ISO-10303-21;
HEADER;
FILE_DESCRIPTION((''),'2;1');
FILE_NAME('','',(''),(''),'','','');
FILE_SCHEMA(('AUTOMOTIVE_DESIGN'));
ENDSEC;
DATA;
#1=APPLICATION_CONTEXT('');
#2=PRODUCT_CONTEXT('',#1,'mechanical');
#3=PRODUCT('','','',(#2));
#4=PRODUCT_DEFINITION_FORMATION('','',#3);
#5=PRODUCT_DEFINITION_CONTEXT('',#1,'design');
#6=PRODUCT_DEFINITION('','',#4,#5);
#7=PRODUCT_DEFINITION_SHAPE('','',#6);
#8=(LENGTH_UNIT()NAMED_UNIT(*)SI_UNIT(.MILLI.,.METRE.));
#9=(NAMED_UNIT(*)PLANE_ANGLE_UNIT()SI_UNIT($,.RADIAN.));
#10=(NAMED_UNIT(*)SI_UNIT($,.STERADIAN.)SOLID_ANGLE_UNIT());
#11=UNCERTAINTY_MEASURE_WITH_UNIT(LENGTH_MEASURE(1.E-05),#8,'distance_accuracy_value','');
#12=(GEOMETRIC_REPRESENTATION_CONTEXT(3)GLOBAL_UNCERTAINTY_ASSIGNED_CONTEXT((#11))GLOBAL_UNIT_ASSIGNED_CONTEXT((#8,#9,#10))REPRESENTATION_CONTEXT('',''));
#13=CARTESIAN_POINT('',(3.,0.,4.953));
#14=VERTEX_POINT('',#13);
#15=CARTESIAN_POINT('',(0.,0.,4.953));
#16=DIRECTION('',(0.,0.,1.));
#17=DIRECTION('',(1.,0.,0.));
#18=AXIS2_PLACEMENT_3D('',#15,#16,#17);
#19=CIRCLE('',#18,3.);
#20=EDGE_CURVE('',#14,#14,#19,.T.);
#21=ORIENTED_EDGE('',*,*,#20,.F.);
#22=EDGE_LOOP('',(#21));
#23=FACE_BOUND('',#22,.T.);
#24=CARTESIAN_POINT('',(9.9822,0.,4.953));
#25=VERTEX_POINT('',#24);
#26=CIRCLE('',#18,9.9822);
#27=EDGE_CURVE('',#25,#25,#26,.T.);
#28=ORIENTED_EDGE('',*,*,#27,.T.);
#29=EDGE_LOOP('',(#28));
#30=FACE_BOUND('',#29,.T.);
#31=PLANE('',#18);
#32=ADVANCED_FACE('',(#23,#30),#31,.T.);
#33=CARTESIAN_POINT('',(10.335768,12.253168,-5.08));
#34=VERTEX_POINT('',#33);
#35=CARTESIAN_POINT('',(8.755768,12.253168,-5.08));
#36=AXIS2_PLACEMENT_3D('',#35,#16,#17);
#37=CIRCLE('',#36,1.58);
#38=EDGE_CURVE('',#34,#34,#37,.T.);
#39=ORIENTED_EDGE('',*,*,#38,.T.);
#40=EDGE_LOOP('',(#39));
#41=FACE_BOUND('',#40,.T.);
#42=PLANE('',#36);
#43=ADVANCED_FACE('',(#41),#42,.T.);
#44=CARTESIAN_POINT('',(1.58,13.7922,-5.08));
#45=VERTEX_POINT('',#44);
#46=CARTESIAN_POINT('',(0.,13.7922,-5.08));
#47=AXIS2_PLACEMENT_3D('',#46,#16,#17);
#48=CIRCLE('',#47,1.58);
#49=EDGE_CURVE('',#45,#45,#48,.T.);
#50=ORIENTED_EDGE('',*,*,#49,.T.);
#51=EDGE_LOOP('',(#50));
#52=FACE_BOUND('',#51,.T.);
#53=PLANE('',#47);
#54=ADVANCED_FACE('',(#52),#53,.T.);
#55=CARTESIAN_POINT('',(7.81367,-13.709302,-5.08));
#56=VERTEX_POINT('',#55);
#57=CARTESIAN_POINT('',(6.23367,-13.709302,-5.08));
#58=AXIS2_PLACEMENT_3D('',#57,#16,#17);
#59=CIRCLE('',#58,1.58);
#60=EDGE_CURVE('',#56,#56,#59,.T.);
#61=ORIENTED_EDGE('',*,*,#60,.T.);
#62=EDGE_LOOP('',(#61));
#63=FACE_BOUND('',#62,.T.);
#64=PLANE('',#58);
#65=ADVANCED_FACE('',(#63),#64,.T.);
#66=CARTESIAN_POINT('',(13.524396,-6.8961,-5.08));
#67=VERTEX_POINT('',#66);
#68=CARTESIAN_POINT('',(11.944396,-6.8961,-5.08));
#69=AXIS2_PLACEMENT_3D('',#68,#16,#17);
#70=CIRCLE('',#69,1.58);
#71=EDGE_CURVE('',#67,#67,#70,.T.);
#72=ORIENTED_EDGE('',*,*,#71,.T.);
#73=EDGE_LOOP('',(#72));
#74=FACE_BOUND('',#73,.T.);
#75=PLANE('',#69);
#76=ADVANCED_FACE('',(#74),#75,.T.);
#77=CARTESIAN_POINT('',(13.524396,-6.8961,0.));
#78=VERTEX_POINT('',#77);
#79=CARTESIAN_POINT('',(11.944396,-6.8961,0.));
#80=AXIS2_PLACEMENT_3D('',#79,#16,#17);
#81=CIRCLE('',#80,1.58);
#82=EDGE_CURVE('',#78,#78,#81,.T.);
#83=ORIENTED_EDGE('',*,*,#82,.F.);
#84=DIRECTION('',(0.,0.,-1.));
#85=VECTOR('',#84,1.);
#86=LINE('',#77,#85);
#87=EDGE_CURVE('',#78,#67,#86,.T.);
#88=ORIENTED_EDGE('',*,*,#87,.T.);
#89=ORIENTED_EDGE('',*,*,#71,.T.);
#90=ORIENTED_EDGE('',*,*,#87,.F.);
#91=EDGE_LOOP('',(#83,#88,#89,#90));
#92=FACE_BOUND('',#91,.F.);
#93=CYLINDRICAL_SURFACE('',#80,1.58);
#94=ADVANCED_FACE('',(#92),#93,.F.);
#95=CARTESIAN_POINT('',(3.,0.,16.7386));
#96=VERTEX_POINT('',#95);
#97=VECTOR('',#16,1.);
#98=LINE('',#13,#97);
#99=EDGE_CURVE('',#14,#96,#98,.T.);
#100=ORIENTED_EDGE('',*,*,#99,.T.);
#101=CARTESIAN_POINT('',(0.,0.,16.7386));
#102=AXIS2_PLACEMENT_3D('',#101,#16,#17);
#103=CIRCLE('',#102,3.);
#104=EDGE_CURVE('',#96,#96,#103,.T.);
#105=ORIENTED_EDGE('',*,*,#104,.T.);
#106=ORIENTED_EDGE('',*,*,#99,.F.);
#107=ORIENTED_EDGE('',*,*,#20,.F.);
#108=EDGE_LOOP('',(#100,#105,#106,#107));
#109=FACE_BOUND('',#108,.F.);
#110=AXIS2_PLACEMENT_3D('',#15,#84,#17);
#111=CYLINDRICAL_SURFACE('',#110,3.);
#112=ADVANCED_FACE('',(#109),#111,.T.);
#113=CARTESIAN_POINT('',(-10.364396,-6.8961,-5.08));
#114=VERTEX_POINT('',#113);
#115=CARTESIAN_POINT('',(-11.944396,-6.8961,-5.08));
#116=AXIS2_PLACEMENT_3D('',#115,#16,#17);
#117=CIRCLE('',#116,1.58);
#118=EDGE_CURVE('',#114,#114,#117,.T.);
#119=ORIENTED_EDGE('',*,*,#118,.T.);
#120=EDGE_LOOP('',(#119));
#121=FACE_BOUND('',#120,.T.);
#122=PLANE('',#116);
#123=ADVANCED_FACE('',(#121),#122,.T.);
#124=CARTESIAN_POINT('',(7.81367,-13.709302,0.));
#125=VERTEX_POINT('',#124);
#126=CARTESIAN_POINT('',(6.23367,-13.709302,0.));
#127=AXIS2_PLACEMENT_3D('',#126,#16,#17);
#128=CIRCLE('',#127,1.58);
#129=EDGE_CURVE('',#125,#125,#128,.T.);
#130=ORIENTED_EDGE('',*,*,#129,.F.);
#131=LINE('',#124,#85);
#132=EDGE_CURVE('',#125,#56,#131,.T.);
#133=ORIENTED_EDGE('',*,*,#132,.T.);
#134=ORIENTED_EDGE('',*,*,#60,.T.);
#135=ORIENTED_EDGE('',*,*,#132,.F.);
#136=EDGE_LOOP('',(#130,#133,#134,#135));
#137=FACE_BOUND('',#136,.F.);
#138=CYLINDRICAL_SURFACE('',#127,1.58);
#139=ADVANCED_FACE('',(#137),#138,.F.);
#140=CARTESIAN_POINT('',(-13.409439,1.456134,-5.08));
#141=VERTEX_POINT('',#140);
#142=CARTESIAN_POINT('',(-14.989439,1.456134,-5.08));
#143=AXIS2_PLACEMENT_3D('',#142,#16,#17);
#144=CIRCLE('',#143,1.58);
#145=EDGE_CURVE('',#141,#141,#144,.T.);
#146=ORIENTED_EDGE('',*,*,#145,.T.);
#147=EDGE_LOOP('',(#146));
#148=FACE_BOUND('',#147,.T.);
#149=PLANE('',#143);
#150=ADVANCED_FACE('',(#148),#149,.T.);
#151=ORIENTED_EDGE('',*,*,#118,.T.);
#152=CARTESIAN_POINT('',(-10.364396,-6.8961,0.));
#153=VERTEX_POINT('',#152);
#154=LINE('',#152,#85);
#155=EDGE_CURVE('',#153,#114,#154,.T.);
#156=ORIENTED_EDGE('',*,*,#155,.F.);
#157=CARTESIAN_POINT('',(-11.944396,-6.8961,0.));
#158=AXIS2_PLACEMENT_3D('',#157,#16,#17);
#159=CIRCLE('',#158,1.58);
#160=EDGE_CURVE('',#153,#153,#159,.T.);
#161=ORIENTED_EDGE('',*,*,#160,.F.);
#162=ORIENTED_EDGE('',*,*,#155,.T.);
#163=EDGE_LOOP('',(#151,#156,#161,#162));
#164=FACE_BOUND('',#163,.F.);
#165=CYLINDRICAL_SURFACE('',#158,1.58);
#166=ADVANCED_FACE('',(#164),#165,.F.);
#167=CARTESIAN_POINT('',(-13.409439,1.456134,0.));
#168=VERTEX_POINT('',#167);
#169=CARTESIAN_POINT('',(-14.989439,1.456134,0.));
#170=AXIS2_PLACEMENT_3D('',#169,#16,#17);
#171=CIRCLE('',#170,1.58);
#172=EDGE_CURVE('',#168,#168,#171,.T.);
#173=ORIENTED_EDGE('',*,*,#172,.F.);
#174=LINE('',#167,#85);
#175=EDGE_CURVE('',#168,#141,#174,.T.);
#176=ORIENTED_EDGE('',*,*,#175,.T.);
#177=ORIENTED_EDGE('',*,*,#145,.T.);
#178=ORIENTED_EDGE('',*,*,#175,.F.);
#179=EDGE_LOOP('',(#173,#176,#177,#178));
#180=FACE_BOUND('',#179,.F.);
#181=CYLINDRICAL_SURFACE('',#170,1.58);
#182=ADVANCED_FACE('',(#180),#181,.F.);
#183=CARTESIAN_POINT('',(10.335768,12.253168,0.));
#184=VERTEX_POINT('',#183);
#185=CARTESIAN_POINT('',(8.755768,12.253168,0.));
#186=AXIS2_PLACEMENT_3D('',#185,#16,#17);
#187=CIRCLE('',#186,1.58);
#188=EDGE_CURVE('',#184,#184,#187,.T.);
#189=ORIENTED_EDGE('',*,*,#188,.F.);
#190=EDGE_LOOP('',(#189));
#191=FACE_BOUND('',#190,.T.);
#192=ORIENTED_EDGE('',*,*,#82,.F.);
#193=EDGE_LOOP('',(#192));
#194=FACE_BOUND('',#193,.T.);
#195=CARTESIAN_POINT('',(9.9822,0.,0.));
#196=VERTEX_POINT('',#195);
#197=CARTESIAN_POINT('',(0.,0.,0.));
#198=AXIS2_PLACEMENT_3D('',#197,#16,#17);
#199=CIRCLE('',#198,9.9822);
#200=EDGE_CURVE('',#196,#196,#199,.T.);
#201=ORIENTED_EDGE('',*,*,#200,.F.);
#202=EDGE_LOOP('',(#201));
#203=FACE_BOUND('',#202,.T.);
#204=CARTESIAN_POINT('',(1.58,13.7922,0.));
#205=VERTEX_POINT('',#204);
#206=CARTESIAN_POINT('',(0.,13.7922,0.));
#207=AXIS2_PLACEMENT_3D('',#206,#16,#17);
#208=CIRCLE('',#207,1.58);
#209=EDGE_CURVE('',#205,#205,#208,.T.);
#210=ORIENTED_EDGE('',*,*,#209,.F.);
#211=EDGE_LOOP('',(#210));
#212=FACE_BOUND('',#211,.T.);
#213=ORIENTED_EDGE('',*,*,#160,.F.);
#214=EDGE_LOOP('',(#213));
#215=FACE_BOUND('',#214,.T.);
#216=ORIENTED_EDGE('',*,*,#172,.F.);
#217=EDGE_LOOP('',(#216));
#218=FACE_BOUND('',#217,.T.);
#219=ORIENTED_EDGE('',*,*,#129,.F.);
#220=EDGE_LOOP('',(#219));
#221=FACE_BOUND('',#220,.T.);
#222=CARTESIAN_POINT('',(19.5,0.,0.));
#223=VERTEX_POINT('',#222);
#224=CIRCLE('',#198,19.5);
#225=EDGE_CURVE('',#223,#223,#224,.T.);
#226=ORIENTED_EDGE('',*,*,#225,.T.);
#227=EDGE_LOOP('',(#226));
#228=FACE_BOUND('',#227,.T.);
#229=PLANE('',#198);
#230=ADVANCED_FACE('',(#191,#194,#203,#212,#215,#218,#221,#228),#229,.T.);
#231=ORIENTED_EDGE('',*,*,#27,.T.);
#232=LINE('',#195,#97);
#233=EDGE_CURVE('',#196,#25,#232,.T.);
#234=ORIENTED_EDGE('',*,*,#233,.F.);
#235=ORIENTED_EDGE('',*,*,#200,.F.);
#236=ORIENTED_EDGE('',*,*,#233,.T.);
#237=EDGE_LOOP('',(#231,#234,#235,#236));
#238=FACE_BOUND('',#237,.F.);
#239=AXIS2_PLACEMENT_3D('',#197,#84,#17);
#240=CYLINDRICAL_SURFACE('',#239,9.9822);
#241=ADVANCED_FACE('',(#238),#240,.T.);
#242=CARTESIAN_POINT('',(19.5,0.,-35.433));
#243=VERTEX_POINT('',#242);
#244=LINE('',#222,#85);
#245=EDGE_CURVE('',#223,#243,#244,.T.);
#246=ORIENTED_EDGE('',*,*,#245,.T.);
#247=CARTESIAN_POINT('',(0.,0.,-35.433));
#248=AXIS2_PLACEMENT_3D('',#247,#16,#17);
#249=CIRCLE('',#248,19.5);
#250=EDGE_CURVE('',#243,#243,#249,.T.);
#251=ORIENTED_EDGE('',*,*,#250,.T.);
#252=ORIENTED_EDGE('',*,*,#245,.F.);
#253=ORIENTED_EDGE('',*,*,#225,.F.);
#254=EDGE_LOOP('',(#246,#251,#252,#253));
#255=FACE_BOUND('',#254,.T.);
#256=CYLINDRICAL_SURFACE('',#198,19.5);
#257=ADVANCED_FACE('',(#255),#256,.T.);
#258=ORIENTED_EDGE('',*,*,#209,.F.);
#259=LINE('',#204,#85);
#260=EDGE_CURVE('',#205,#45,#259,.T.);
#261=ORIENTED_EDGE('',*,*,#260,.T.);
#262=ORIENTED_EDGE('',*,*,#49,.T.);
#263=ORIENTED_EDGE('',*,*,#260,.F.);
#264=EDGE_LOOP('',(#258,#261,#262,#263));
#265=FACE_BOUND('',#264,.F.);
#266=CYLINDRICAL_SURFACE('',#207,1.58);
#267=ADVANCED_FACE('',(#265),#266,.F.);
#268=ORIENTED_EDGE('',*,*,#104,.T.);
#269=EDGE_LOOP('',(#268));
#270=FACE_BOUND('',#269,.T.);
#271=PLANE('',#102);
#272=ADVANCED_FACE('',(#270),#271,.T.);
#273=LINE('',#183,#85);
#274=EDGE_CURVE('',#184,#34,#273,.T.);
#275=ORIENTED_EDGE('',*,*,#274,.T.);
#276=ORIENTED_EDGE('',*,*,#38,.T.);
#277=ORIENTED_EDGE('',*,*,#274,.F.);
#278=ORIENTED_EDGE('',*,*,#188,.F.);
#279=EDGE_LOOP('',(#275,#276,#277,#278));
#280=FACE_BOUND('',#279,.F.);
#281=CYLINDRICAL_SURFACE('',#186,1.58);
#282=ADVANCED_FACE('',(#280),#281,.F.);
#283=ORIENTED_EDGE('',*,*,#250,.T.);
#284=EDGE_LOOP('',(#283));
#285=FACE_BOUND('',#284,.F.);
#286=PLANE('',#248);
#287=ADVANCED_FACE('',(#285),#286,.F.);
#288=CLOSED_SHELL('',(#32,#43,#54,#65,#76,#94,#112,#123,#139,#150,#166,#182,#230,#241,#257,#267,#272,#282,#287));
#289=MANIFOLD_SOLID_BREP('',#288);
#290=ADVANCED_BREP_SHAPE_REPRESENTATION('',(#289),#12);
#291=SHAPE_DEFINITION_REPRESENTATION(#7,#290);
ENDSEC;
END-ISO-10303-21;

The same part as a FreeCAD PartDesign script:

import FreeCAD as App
import Part
import Sketcher
from FreeCAD import Vector
Q = App.Units.Quantity

doc = App.newDocument("Part")
params = doc.addObject("Spreadsheet::Sheet", "Params")
for row, (alias, value) in enumerate([
    ("pad1_length", "1.395 in"),
    ("sketch2_diameter", "0.786 in"),
    ("pad2_length", "0.195 in"),
    ("pad3_length", "0.464 in"),
    ("pocket1_length", "0.2 in"),
], start=1):
    params.set(f"A{row}", alias)
    params.set(f"B{row}", "=" + value)
    params.setAlias(f"B{row}", alias)

body = doc.addObject("PartDesign::Body", "Body")

# Sketch on XY plane
sketch1 = body.newObject("Sketcher::SketchObject", "Sketch")
sketch1.AttachmentSupport = (doc.getObject("XY_Plane"), [""])
sketch1.MapMode = "FlatFace"
sketch1.addGeometry(Part.Circle(Vector(0, 0, 0), Vector(0, 0, 1), 20), False)
sketch1.addConstraint([
    Sketcher.Constraint("Coincident", 0, 3, -1, 1),
    Sketcher.Constraint("Diameter", 0, 39.0),
])
pad1 = body.newObject("PartDesign::Pad", "Pad")
pad1.Profile = sketch1
pad1.setExpression("Length", "Params.pad1_length")
pad1.Reversed = True

# Sketch on XY plane
sketch2 = body.newObject("Sketcher::SketchObject", "Sketch001")
sketch2.AttachmentSupport = (doc.getObject("XY_Plane"), [""])
sketch2.MapMode = "FlatFace"
sketch2.addGeometry(Part.Circle(Vector(0, 0, 0), Vector(0, 0, 1), 10), False)
sketch2.addConstraint([
    Sketcher.Constraint("Coincident", 0, 3, -1, 1),
    Sketcher.Constraint("Diameter", 0, Q("0.786 in")),
])
sketch2.setExpression("Constraints[1]", "Params.sketch2_diameter")
pad2 = body.newObject("PartDesign::Pad", "Pad001")
pad2.Profile = sketch2
pad2.setExpression("Length", "Params.pad2_length")

# Sketch on XY plane
sketch3 = body.newObject("Sketcher::SketchObject", "Sketch002")
sketch3.AttachmentSupport = (doc.getObject("XY_Plane"), [""])
sketch3.MapMode = "FlatFace"
sketch3.AttachmentOffset = App.Placement(Vector(0, 0, 0.195 * 25.4), App.Rotation())
sketch3.addGeometry(Part.Circle(Vector(0, 0, 0), Vector(0, 0, 1), 3), False)
sketch3.addConstraint([
    Sketcher.Constraint("Coincident", 0, 3, -1, 1),
    Sketcher.Constraint("Diameter", 0, 6.0),
])
pad3 = body.newObject("PartDesign::Pad", "Pad002")
pad3.Profile = sketch3
pad3.setExpression("Length", "Params.pad3_length")

# Sketch on XY plane
sketch4 = body.newObject("Sketcher::SketchObject", "Sketch003")
sketch4.AttachmentSupport = (doc.getObject("XY_Plane"), [""])
sketch4.MapMode = "FlatFace"
sketch4.addGeometry([
    Part.Circle(Vector(-11.9, -6.9, 0), Vector(0, 0, 1), 1.6),  # 0
    Part.Circle(Vector(11.9, -6.9, 0), Vector(0, 0, 1), 1.6),  # 1
    Part.Circle(Vector(0, 13.8, 0), Vector(0, 0, 1), 1.6),  # 2
    Part.Circle(Vector(8.8, 12.3, 0), Vector(0, 0, 1), 1.6),  # 3
    Part.Circle(Vector(6.2, -13.7, 0), Vector(0, 0, 1), 1.6),  # 4
    Part.Circle(Vector(-15, 1.5, 0), Vector(0, 0, 1), 1.6),  # 5
], False)
sketch4.addConstraint([
    Sketcher.Constraint("Equal", 0, 1),
    Sketcher.Constraint("Equal", 1, 2),
    Sketcher.Constraint("Equal", 2, 3),
    Sketcher.Constraint("Equal", 3, 4),
    Sketcher.Constraint("Equal", 4, 5),
    Sketcher.Constraint("Symmetric", 0, 3, 1, 3, -2),
    Sketcher.Constraint("PointOnObject", 2, 3, -2),
    Sketcher.Constraint("Diameter", 0, 3.16),
    Sketcher.Constraint("DistanceY", -1, 1, 2, 3, Q("0.543 in")),
    Sketcher.Constraint("DistanceY", 0, 3, -1, 1, Q("0.2715 in")),
    Sketcher.Constraint("DistanceY", 4, 3, -1, 1, 13.709302),
    Sketcher.Constraint("DistanceX", -1, 1, 3, 3, 8.755768),
    Sketcher.Constraint("DistanceX", -1, 1, 4, 3, 6.23367),
    Sketcher.Constraint("DistanceX", 5, 3, -1, 1, 14.989439),
    Sketcher.Constraint("DistanceX", 0, 3, 1, 3, 23.888791),
    Sketcher.Constraint("DistanceY", 4, 3, 3, 3, 25.962469),
    Sketcher.Constraint("DistanceY", -1, 1, 5, 3, 1.456134),
])
pocket1 = body.newObject("PartDesign::Pocket", "Pocket")
pocket1.Profile = sketch4
pocket1.setExpression("Length", "Params.pocket1_length")

doc.recompute()
